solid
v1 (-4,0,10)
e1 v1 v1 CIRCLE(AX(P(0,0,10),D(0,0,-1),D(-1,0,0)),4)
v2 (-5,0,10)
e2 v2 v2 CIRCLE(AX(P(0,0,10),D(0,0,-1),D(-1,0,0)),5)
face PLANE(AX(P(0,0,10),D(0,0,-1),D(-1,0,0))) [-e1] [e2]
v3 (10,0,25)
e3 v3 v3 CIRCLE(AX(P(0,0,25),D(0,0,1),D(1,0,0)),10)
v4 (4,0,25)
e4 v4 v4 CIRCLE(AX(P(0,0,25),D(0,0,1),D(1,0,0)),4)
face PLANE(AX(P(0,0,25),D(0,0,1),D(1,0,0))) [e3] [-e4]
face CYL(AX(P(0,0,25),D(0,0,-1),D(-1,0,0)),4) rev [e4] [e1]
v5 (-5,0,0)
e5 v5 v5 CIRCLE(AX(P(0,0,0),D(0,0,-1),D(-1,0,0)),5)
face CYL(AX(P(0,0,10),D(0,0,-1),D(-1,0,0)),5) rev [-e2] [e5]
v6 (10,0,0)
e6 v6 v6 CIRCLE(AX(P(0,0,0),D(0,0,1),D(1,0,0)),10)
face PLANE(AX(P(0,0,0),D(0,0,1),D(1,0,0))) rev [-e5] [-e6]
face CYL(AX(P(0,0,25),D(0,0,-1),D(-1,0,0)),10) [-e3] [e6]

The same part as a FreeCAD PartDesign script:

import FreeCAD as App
import Part
import Sketcher

V = App.Vector

doc = App.newDocument("Part")
body = doc.addObject("PartDesign::Body", "Body")

sketch1 = body.newObject("Sketcher::SketchObject", "Sketch")
sketch1.AttachmentSupport = (doc.getObject("XY_Plane"), [""])
sketch1.MapMode = "FlatFace"
sketch1.addGeometry([
    Part.Circle(V(0, 0, 0), V(0, 0, 1), 10),
    Part.Circle(V(0, 0, 0), V(0, 0, 1), 4),
], False)
sketch1.addConstraint([
    Sketcher.Constraint("Coincident", 0, 3, -1, 1),
    Sketcher.Constraint("Coincident", 1, 3, -1, 1),
    Sketcher.Constraint("Diameter", 0, 20.0),
    Sketcher.Constraint("Diameter", 1, 8.0),
])
pad1 = body.newObject("PartDesign::Pad", "Pad")
pad1.Profile = sketch1
pad1.Length = 25

sketch2 = body.newObject("Sketcher::SketchObject", "Sketch001")
sketch2.AttachmentSupport = (doc.getObject("XY_Plane"), [""])
sketch2.MapMode = "FlatFace"
sketch2.addGeometry(Part.Circle(V(0, 0, 0), V(0, 0, 1), 5), False)
sketch2.addConstraint([
    Sketcher.Constraint("Coincident", 0, 3, -1, 1),
    Sketcher.Constraint("Diameter", 0, 10.0),
])
pocket1 = body.newObject("PartDesign::Pocket", "Pocket")
pocket1.Profile = sketch2
pocket1.Length = 10
pocket1.Reversed = True

doc.recompute()
